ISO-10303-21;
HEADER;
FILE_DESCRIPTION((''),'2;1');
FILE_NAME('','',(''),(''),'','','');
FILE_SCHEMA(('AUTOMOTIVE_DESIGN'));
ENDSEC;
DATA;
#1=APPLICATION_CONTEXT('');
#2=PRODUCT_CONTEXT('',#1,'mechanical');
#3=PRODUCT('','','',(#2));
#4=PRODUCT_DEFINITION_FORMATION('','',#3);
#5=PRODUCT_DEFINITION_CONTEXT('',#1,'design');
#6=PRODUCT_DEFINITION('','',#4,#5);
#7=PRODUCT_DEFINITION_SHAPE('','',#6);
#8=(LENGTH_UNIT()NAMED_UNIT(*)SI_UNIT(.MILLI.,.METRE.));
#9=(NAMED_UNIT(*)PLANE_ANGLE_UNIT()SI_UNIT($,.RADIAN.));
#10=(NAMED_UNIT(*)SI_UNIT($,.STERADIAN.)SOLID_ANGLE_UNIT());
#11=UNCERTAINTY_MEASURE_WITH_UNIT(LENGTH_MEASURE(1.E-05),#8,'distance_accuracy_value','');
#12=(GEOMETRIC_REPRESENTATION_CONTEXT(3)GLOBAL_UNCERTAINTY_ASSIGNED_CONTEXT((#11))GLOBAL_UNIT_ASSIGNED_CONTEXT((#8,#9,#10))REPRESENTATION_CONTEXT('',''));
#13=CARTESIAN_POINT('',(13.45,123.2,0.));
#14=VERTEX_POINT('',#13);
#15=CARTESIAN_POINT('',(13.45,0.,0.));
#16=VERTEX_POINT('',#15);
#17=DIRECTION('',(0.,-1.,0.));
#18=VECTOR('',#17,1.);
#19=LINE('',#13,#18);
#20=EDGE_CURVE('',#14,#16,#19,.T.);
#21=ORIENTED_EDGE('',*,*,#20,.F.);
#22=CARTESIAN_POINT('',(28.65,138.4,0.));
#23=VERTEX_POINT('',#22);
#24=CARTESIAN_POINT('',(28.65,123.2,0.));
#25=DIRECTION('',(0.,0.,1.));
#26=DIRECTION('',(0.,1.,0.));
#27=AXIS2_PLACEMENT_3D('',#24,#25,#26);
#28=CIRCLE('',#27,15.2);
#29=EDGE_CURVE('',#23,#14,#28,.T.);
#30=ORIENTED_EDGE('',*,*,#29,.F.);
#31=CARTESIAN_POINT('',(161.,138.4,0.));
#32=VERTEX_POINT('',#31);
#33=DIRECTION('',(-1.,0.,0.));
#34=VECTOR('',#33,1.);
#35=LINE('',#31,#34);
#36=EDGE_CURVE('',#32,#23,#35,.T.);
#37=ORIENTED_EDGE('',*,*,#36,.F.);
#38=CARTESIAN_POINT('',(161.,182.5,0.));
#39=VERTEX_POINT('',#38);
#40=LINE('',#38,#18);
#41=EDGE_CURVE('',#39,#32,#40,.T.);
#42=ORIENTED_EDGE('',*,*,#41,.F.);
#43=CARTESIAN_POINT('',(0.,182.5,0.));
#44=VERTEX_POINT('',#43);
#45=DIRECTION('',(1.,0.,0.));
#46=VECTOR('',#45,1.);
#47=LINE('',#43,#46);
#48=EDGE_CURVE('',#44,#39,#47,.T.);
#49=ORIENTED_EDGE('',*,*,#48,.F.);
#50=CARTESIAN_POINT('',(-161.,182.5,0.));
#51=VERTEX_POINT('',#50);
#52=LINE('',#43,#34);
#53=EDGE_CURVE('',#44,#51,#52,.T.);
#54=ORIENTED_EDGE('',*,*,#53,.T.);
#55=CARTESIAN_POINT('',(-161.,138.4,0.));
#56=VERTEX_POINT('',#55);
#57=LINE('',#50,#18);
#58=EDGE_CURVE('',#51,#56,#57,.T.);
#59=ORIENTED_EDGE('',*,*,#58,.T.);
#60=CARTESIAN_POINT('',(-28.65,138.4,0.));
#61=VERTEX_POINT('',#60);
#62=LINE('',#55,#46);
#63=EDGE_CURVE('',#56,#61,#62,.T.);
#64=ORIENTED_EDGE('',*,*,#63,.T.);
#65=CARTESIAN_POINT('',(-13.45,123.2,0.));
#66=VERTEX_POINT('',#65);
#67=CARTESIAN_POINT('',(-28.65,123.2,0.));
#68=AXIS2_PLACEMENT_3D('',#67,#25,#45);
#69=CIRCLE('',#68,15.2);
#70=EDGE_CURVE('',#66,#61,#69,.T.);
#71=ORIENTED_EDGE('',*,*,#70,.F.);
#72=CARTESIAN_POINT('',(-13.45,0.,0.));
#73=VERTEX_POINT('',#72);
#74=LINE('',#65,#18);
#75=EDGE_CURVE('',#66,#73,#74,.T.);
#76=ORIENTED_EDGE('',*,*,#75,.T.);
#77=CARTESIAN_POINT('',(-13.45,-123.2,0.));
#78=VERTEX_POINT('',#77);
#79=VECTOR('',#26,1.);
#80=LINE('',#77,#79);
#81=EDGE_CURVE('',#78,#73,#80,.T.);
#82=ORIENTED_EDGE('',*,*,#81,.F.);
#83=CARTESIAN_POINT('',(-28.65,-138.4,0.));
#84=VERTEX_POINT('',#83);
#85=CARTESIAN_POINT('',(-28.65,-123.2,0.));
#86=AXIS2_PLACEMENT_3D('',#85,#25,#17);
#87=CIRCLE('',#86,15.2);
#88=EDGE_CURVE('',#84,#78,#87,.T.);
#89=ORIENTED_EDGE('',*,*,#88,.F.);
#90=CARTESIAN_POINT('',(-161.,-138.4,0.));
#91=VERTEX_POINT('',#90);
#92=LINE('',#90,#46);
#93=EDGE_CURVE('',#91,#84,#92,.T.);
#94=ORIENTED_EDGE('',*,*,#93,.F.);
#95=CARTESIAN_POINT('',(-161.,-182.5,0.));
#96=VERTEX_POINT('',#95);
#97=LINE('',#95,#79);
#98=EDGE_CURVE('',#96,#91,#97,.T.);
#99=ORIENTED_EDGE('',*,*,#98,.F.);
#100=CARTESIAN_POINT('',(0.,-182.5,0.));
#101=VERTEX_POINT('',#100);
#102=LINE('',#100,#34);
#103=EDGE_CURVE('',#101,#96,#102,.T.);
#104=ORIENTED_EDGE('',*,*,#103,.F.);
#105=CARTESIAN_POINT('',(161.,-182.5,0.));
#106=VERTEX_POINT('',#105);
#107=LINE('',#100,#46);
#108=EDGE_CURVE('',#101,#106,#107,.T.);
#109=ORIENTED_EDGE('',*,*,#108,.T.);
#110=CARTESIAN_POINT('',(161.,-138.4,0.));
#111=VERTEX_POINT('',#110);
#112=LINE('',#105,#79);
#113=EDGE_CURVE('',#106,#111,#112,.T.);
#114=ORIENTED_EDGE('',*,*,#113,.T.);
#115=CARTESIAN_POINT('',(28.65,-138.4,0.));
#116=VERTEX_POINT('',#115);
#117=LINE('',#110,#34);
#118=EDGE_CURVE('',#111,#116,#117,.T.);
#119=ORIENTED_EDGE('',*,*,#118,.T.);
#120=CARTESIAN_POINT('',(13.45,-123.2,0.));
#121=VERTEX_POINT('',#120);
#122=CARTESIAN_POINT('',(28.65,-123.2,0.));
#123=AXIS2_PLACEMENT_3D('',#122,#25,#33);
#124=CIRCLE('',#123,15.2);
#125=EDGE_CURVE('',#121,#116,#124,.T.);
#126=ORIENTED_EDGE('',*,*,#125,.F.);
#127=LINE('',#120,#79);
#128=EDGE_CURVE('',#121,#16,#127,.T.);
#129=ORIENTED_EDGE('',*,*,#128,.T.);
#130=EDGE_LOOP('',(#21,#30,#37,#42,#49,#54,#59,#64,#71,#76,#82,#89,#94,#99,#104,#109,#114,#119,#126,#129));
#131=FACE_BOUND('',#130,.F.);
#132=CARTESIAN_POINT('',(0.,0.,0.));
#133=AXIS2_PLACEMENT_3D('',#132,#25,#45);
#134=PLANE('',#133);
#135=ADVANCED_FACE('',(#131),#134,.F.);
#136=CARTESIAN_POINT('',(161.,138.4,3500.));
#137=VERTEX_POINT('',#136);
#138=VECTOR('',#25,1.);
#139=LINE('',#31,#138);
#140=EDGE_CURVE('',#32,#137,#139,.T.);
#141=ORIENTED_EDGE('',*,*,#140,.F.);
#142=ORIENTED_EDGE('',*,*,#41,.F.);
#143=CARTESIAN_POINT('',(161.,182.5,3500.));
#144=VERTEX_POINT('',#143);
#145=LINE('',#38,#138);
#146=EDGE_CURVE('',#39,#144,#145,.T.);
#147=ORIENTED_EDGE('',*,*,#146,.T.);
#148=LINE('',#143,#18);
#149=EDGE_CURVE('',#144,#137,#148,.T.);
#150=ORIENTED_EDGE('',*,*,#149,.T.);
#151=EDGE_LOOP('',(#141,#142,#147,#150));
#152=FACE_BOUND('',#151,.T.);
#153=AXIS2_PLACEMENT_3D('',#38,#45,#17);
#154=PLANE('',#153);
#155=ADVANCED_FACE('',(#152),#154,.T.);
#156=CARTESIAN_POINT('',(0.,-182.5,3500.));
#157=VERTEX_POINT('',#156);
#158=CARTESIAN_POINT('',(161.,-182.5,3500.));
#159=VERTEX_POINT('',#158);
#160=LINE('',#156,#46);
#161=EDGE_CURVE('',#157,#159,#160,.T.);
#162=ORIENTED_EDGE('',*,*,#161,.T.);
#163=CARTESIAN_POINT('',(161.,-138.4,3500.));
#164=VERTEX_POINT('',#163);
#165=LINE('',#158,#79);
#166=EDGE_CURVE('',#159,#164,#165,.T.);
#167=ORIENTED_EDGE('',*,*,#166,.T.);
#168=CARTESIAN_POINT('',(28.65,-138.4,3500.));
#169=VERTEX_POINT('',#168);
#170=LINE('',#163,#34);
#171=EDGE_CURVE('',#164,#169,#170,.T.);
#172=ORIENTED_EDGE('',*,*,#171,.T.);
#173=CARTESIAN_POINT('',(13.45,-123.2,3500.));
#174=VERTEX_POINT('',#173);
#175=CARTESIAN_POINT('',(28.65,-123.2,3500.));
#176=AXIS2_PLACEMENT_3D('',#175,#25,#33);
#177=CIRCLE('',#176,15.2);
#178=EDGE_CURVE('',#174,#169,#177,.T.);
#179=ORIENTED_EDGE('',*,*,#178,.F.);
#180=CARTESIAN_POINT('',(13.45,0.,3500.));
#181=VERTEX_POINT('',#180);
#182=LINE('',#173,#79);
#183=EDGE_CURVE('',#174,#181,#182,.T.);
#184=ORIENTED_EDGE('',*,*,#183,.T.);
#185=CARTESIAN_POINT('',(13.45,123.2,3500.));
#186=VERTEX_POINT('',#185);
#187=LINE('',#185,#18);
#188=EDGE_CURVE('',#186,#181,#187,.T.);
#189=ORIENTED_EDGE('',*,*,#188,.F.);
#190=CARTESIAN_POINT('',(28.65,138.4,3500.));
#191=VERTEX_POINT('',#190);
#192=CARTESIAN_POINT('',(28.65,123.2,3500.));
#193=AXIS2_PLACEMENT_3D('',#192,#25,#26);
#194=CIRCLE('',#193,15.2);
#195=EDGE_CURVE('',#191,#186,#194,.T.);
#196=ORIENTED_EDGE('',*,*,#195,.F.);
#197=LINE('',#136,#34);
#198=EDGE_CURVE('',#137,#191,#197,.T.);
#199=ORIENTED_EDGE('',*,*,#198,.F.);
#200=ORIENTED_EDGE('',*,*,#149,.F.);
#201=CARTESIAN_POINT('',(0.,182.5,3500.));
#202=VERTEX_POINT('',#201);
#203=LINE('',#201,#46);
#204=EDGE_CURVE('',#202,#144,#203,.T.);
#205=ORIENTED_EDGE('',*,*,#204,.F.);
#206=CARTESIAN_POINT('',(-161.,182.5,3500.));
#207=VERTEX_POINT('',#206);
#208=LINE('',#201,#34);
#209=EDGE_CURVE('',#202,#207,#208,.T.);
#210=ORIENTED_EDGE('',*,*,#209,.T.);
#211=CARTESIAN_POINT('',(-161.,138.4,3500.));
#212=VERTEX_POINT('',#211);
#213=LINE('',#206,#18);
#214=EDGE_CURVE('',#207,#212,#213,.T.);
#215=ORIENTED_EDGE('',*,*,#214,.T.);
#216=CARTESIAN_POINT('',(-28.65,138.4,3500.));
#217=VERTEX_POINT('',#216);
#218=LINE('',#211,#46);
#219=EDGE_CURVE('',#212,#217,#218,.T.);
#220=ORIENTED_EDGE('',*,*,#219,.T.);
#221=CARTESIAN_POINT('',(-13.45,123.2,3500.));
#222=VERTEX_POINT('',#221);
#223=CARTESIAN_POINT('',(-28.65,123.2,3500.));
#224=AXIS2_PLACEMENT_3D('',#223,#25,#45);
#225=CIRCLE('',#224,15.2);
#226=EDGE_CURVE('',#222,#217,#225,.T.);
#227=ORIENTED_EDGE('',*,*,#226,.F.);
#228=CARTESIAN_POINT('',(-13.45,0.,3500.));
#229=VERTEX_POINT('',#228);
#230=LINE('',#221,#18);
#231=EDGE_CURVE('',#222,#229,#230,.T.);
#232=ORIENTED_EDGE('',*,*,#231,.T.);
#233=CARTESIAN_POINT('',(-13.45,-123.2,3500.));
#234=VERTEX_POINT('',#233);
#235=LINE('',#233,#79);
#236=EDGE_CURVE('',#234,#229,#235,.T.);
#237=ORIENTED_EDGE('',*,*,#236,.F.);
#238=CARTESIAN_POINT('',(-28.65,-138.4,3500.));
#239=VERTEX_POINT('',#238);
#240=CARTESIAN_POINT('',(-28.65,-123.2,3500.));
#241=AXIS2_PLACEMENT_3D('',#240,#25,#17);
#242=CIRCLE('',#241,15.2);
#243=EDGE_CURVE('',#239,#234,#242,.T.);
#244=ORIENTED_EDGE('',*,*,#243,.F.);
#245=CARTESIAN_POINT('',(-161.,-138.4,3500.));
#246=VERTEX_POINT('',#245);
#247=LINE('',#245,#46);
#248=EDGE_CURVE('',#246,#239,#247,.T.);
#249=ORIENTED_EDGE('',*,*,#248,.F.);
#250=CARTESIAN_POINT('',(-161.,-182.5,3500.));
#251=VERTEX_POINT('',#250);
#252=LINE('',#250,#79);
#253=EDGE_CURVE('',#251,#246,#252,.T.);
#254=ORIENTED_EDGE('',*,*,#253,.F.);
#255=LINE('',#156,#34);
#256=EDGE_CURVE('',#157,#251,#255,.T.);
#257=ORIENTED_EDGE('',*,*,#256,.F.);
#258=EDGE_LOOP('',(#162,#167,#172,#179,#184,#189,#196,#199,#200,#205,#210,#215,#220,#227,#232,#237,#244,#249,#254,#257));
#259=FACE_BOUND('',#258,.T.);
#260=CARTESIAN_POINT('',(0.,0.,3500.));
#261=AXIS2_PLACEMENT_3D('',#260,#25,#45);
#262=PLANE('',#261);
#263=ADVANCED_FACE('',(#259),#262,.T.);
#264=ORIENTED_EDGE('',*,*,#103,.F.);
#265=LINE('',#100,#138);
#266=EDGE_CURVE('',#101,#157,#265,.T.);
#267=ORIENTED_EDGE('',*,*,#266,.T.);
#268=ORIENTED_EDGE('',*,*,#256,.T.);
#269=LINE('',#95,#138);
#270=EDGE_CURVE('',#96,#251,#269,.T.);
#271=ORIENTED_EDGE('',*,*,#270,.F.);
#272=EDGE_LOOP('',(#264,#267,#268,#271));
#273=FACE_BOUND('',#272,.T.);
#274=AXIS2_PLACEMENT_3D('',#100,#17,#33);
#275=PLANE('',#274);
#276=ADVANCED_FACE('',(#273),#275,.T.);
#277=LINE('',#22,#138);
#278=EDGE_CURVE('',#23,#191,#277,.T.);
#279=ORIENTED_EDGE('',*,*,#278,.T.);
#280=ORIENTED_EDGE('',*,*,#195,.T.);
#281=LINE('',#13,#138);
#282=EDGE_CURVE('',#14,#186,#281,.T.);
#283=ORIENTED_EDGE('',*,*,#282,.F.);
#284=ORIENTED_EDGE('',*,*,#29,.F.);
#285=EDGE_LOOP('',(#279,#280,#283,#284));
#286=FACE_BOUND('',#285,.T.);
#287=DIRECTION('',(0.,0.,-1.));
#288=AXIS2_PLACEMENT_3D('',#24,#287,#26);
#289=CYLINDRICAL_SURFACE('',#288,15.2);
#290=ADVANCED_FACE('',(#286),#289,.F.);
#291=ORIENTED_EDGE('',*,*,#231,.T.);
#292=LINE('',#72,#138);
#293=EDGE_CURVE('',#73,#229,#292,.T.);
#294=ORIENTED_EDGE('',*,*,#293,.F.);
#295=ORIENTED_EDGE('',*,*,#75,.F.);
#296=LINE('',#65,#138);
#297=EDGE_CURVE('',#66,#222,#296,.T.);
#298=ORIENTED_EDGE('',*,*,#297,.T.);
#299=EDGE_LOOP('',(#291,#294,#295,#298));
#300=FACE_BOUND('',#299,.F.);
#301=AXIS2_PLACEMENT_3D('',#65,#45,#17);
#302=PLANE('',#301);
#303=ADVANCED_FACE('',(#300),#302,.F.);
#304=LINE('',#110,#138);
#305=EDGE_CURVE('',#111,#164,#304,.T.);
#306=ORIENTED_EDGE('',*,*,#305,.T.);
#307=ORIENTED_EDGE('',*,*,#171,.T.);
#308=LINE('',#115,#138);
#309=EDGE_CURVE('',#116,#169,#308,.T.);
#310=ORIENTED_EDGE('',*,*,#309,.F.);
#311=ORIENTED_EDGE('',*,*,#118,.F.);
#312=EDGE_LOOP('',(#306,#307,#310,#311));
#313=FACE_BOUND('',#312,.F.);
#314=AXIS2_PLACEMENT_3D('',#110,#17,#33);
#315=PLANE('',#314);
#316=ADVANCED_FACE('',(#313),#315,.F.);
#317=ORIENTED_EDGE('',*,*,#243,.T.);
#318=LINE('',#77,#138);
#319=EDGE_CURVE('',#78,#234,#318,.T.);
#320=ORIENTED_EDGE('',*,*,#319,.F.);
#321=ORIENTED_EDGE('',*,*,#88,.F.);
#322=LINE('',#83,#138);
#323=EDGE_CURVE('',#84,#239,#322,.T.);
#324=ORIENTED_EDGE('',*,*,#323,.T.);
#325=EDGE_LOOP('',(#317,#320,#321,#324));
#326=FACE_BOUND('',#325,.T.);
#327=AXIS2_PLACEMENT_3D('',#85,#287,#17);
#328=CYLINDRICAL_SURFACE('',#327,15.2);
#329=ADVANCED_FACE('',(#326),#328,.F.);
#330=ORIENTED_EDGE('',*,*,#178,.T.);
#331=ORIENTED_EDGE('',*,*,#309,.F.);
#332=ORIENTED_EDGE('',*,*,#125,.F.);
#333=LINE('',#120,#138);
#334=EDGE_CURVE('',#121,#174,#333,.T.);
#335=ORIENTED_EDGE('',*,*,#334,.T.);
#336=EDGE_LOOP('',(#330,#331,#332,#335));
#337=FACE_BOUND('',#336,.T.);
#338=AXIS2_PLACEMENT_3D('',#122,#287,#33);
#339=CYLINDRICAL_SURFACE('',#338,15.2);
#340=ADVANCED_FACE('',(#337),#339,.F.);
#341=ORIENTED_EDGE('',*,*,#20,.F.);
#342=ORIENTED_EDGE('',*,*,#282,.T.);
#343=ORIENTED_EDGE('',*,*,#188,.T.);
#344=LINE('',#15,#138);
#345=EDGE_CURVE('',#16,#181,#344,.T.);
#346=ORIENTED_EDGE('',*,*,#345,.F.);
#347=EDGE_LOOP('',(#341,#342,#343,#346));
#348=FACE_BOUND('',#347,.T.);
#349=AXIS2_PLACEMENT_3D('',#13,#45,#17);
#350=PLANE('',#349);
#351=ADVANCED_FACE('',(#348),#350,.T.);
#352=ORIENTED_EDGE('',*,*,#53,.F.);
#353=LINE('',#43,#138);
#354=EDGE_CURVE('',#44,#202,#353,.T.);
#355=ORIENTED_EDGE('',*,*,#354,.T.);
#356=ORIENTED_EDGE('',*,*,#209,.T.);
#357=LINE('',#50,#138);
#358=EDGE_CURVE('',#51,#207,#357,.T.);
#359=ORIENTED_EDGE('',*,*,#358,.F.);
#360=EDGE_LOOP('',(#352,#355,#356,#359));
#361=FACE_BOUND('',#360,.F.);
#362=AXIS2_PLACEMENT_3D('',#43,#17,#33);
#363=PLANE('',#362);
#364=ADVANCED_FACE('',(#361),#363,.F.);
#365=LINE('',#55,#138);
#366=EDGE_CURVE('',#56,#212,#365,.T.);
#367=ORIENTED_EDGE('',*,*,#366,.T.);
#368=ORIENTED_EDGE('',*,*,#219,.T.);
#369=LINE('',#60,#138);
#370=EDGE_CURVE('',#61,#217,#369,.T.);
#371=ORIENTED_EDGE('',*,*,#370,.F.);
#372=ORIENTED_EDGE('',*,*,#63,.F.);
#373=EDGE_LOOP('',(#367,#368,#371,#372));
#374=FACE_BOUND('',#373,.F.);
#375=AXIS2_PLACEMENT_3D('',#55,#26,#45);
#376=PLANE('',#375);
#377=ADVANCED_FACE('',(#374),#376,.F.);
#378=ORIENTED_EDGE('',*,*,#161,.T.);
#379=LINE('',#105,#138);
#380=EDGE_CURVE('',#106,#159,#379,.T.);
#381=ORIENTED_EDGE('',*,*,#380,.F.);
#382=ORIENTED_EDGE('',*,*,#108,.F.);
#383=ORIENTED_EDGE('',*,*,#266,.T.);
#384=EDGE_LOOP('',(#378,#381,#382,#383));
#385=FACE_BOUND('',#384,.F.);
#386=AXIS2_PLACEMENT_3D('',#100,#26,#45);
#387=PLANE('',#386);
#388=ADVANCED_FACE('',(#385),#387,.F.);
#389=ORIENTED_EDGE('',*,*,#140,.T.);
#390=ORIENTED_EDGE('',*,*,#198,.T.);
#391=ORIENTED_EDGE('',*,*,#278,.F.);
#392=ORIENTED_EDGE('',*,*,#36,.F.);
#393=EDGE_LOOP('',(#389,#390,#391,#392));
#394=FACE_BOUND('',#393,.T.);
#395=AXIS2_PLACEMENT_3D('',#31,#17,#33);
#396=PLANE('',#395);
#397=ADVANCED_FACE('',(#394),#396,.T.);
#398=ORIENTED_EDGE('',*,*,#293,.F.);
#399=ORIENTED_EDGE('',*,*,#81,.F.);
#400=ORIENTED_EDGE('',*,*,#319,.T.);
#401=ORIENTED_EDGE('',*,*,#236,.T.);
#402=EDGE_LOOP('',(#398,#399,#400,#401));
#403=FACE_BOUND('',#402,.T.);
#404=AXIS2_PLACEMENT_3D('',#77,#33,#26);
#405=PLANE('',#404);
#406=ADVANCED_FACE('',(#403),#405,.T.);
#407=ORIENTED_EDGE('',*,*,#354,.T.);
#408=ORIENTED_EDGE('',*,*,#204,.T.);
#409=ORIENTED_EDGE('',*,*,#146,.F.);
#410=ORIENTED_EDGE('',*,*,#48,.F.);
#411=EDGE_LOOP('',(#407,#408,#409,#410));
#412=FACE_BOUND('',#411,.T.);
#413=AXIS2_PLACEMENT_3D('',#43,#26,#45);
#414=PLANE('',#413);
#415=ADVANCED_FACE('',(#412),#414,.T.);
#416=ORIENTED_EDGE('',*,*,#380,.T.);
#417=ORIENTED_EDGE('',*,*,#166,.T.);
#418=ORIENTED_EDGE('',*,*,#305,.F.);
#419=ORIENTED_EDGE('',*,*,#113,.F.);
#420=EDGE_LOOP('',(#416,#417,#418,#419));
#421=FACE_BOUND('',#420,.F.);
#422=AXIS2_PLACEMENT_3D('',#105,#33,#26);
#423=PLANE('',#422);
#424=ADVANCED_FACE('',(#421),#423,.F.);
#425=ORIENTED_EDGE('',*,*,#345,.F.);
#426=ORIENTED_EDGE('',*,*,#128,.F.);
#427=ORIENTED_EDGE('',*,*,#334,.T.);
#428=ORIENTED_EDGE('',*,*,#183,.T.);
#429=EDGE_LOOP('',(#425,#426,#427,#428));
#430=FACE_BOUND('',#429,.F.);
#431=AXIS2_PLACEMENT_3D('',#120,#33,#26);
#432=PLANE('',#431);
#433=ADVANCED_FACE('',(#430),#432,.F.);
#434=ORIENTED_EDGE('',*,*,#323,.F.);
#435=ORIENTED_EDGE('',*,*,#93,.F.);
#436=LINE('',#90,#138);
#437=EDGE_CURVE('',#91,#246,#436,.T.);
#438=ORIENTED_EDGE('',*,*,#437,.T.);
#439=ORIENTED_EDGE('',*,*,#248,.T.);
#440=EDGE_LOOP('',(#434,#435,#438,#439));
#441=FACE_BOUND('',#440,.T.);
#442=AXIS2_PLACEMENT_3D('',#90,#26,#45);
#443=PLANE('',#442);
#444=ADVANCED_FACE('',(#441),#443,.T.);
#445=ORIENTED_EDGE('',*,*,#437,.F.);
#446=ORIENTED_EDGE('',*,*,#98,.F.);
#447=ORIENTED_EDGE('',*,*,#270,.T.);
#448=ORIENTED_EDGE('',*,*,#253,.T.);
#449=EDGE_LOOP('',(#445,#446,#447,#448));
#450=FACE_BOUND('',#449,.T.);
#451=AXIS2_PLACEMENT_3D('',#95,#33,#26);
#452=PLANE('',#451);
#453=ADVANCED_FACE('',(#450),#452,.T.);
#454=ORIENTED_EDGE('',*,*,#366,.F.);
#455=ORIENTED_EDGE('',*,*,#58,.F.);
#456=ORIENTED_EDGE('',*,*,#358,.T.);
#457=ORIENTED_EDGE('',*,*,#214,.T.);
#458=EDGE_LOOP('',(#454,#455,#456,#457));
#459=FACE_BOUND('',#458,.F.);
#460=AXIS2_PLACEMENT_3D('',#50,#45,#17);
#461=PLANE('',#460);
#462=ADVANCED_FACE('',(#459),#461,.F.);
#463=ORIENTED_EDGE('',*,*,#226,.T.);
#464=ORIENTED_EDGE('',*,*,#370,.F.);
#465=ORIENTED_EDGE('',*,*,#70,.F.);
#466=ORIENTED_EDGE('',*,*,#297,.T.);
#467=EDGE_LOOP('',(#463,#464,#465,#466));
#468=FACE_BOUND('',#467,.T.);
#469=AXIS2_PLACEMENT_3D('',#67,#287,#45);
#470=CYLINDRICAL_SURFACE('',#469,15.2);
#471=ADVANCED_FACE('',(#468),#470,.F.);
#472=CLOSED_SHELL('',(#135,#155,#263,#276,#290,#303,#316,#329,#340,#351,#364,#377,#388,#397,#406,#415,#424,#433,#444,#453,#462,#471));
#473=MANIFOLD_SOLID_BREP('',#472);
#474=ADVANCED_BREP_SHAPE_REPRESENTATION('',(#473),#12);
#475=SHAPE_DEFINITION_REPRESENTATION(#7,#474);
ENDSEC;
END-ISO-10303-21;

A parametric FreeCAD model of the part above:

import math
import FreeCAD as App
import Part
import Sketcher

V = App.Vector
Q = App.Units.Quantity

doc = App.newDocument("Part")
body = doc.addObject("PartDesign::Body", "Body")

sketch1 = doc.addObject("Sketcher::SketchObject", "Sketch")
body.addObject(sketch1)
sketch1.AttachmentSupport = (doc.XY_Plane, [""])
sketch1.MapMode = "FlatFace"
sketch1.addGeometry([
    Part.LineSegment(V(-161, -138, 0), V(-161, -182, 0)),
    Part.LineSegment(V(-161, -182, 0), V(161, -182, 0)),
    Part.LineSegment(V(161, -182, 0), V(161, -138, 0)),
    Part.LineSegment(V(161, -138, 0), V(29, -138, 0)),
    Part.ArcOfCircle(Part.Circle(V(29, -123, 0), V(0, 0, 1), 15), math.radians(180), math.radians(270)),
    Part.LineSegment(V(13, -123, 0), V(13, 123, 0)),
    Part.ArcOfCircle(Part.Circle(V(29, 123, 0), V(0, 0, 1), 15), math.radians(90), math.radians(180)),
    Part.LineSegment(V(29, 138, 0), V(161, 138, 0)),
    Part.LineSegment(V(161, 138, 0), V(161, 182, 0)),
    Part.LineSegment(V(161, 182, 0), V(-161, 182, 0)),
    Part.LineSegment(V(-161, 182, 0), V(-161, 138, 0)),
    Part.LineSegment(V(-161, 138, 0), V(-29, 138, 0)),
    Part.ArcOfCircle(Part.Circle(V(-29, 123, 0), V(0, 0, 1), 15), math.radians(0), math.radians(90)),
    Part.LineSegment(V(-13, 123, 0), V(-13, -123, 0)),
    Part.ArcOfCircle(Part.Circle(V(-29, -123, 0), V(0, 0, 1), 15), math.radians(-90), math.radians(0)),
    Part.LineSegment(V(-29, -138, 0), V(-161, -138, 0)),
], False)
sketch1.addConstraint([
    Sketcher.Constraint("Coincident", 0, 2, 1, 1),
    Sketcher.Constraint("Coincident", 1, 2, 2, 1),
    Sketcher.Constraint("Coincident", 2, 2, 3, 1),
    Sketcher.Constraint("Tangent", 3, 2, 4, 2),
    Sketcher.Constraint("Tangent", 4, 1, 5, 1),
    Sketcher.Constraint("Tangent", 5, 2, 6, 2),
    Sketcher.Constraint("Tangent", 6, 1, 7, 1),
    Sketcher.Constraint("Coincident", 7, 2, 8, 1),
    Sketcher.Constraint("Coincident", 8, 2, 9, 1),
    Sketcher.Constraint("Coincident", 9, 2, 10, 1),
    Sketcher.Constraint("Coincident", 10, 2, 11, 1),
    Sketcher.Constraint("Tangent", 11, 2, 12, 2),
    Sketcher.Constraint("Tangent", 12, 1, 13, 1),
    Sketcher.Constraint("Tangent", 13, 2, 14, 2),
    Sketcher.Constraint("Tangent", 14, 1, 15, 1),
    Sketcher.Constraint("Coincident", 15, 2, 0, 1),
    Sketcher.Constraint("Vertical", 0),
    Sketcher.Constraint("Horizontal", 1),
    Sketcher.Constraint("Vertical", 2),
    Sketcher.Constraint("Horizontal", 3),
    Sketcher.Constraint("Vertical", 5),
    Sketcher.Constraint("Horizontal", 7),
    Sketcher.Constraint("Vertical", 8),
    Sketcher.Constraint("Horizontal", 9),
    Sketcher.Constraint("Vertical", 10),
    Sketcher.Constraint("Horizontal", 11),
    Sketcher.Constraint("Vertical", 13),
    Sketcher.Constraint("Horizontal", 15),
    Sketcher.Constraint("Equal", 4, 6),
    Sketcher.Constraint("Equal", 6, 12),
    Sketcher.Constraint("Equal", 12, 14),
    Sketcher.Constraint("Symmetric", 4, 3, 12, 3, -1, 1),
    Sketcher.Constraint("Symmetric", 0, 2, 8, 2, -1, 1),
    Sketcher.Constraint("Symmetric", 7, 2, 10, 2, -2),
    Sketcher.Constraint("Symmetric", 2, 2, 15, 2, -2),
    Sketcher.Constraint("Radius", 4, Q("15.2 mm")),
    Sketcher.Constraint("DistanceY", 0, 2, 0, 1, Q("44.1 mm")),
    Sketcher.Constraint("DistanceX", 0, 2, -1, 1, Q("161 mm")),
    Sketcher.Constraint("DistanceY", 0, 2, -1, 1, Q("182.5 mm")),
    Sketcher.Constraint("DistanceX", -1, 1, 4, 1, Q("13.45 mm")),
])
pad1 = doc.addObject("PartDesign::Pad", "Pad")
body.addObject(pad1)
pad1.Profile = sketch1
pad1.Length = 3500

doc.recompute()
